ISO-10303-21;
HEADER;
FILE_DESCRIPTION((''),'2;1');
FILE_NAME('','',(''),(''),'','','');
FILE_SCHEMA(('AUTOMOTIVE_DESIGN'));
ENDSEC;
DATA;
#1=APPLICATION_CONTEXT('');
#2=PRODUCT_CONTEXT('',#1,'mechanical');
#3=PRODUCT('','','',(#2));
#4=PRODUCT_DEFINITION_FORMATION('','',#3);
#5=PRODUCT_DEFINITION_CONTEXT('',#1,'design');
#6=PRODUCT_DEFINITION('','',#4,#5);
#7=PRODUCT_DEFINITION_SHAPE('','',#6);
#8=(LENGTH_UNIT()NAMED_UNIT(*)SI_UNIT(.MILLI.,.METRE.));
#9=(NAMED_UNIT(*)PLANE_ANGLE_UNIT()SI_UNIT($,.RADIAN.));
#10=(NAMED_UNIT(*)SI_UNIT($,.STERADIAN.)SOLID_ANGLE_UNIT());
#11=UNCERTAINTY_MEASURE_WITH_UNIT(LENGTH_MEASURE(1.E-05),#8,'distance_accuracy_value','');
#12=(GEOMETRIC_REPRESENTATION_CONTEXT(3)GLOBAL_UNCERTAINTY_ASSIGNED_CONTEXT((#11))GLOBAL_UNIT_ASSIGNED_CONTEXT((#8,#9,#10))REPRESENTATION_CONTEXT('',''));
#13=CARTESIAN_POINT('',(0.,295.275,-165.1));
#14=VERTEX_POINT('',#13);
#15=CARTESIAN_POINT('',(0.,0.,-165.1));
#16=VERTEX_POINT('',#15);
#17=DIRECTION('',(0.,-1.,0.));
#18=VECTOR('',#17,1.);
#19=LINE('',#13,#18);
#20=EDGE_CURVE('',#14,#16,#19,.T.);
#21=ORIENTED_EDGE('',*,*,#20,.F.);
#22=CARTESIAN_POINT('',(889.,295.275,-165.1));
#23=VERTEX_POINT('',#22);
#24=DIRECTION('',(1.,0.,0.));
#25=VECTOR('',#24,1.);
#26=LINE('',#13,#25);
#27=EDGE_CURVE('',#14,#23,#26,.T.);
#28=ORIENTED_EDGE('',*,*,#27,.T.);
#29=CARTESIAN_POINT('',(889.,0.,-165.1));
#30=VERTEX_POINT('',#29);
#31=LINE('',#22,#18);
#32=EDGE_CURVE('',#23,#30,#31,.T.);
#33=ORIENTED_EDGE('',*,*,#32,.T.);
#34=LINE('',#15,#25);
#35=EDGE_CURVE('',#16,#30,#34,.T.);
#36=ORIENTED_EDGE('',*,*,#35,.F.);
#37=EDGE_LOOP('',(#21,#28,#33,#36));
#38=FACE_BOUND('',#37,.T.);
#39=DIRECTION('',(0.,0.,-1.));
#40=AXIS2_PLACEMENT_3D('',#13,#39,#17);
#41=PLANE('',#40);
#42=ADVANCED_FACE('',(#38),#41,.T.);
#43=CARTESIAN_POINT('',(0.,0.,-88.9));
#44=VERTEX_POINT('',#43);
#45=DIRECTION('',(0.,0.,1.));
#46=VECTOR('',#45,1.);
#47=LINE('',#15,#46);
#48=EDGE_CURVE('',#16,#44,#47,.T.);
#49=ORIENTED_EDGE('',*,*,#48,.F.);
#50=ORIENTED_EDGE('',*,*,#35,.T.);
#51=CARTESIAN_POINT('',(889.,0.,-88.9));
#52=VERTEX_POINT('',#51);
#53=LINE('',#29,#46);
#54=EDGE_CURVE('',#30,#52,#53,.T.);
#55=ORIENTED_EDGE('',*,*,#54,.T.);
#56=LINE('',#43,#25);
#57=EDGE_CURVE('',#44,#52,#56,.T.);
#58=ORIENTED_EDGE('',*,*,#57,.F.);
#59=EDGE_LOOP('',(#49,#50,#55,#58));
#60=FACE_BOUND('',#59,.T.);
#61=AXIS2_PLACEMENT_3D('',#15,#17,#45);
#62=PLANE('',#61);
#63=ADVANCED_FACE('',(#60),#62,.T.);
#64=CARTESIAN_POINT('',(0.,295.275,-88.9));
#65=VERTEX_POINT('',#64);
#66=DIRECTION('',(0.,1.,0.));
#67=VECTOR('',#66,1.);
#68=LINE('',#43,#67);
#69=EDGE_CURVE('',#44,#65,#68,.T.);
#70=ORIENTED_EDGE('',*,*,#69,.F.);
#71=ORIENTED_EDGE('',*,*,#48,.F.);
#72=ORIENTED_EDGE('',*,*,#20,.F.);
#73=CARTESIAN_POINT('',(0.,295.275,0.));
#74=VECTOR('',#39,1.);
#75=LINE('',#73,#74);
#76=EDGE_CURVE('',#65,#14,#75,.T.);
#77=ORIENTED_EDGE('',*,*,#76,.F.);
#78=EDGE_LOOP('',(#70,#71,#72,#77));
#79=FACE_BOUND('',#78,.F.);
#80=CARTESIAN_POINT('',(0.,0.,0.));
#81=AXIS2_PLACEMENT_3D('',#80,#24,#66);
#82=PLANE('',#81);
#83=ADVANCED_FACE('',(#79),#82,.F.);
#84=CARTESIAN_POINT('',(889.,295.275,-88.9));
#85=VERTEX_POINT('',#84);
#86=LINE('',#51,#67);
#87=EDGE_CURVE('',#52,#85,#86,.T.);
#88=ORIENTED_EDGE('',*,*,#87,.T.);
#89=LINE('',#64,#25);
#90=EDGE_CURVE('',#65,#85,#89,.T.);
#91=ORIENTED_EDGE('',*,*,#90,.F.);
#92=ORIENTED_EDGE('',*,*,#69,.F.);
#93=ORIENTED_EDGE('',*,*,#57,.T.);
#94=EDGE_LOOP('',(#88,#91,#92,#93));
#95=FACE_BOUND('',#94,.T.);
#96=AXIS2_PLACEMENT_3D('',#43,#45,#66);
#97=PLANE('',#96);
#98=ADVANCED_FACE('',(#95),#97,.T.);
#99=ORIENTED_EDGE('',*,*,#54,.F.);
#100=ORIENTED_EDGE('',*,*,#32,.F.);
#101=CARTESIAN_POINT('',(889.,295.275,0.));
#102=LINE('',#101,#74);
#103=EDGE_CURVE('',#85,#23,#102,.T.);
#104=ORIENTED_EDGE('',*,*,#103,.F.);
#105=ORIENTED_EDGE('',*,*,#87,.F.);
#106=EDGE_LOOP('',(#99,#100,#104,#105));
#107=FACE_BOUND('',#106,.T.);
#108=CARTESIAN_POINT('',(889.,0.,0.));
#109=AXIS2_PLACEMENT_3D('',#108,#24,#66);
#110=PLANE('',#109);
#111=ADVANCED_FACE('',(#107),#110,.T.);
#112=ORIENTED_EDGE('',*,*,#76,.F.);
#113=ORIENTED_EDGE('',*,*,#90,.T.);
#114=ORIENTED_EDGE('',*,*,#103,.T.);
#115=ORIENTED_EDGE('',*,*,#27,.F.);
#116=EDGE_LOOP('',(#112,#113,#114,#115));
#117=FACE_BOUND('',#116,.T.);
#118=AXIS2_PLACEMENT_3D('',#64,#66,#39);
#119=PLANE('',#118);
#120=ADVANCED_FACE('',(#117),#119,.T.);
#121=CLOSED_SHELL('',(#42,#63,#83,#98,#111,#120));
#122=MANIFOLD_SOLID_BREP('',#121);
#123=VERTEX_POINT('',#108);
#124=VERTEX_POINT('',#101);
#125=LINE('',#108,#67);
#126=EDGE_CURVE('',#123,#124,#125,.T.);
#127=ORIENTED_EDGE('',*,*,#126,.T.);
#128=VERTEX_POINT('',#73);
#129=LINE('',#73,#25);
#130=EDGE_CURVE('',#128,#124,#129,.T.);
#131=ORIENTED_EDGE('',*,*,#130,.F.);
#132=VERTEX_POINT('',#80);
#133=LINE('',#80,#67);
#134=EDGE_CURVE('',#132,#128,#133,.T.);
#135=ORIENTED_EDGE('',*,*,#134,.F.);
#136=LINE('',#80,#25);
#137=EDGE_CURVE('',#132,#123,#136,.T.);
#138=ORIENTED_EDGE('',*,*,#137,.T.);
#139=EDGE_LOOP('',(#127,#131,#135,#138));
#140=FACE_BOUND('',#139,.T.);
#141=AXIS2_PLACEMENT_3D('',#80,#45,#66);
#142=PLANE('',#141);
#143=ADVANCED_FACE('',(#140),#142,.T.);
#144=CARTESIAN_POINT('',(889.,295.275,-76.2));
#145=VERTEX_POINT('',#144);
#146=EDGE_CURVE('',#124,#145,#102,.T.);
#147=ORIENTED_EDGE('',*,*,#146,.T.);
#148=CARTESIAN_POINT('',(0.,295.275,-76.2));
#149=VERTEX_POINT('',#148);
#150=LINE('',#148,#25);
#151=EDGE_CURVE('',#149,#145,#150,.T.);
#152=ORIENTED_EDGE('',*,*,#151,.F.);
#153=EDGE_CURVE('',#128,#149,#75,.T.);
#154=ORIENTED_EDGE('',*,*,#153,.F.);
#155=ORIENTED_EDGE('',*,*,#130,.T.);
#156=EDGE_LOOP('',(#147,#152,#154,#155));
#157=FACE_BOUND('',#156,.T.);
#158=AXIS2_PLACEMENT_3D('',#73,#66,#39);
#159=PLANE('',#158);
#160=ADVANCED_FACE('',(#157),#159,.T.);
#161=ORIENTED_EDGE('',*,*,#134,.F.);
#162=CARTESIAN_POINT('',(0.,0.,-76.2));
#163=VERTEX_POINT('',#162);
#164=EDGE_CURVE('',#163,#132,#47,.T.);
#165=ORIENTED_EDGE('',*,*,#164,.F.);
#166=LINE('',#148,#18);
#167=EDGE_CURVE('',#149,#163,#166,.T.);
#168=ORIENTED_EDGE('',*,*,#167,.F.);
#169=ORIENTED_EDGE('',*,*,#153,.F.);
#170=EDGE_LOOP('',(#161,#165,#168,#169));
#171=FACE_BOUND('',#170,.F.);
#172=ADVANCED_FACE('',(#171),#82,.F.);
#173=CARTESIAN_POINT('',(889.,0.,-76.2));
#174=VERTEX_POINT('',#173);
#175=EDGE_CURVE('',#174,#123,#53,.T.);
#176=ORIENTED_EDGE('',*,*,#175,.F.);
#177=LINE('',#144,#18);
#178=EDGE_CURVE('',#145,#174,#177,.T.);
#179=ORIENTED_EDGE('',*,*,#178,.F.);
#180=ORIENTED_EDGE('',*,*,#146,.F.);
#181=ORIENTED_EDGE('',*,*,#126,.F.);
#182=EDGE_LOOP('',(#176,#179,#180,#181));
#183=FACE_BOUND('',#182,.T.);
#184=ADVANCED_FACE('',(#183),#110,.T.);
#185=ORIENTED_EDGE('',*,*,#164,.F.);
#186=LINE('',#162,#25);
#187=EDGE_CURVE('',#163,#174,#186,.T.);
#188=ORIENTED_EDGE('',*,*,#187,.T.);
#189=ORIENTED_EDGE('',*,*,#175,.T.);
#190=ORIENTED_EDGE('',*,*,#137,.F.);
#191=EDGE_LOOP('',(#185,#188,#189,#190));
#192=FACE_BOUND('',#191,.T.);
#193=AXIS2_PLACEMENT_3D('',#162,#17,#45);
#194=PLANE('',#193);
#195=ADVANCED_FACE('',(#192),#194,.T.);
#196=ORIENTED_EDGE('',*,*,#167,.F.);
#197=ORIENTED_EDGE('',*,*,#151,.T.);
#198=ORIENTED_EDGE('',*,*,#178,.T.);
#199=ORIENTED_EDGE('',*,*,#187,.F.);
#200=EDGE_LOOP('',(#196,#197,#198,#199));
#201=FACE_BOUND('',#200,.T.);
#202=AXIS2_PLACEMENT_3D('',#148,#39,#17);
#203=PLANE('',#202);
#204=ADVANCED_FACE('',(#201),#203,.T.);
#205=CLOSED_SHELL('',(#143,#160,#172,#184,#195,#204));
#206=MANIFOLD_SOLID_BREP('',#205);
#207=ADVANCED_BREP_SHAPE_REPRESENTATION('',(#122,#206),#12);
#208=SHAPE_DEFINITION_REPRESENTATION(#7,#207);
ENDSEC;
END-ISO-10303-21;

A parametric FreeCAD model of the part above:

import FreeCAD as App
import Part
import Sketcher
from FreeCAD import Vector
Q = App.Units.Quantity

doc = App.newDocument("Part")
params = doc.addObject("Spreadsheet::Sheet", "Params")
for row, (alias, value) in enumerate([
    ("sketch1_width", "11.625 in"),
    ("pad1_length", "35 in"),
], start=1):
    params.set(f"A{row}", alias)
    params.set(f"B{row}", "=" + value)
    params.setAlias(f"B{row}", alias)

body = doc.addObject("PartDesign::Body", "Body")
body.AllowCompound = True

sketch1 = body.newObject("Sketcher::SketchObject", "Sketch")
sketch1.AttachmentSupport = (doc.getObject("YZ_Plane"), [""])
sketch1.MapMode = "FlatFace"
sketch1.addGeometry([
    Part.LineSegment(Vector(295, 0, 0), Vector(0, 0, 0)),
    Part.LineSegment(Vector(0, 0, 0), Vector(0, -76, 0)),
    Part.LineSegment(Vector(0, -76, 0), Vector(295, -76, 0)),
    Part.LineSegment(Vector(295, -76, 0), Vector(295, 0, 0)),
    Part.LineSegment(Vector(295, -89, 0), Vector(0, -89, 0)),
    Part.LineSegment(Vector(0, -89, 0), Vector(0, -165, 0)),
    Part.LineSegment(Vector(0, -165, 0), Vector(295, -165, 0)),
    Part.LineSegment(Vector(295, -165, 0), Vector(295, -89, 0)),
], False)
sketch1.addConstraint([
    Sketcher.Constraint("Coincident", 0, 2, 1, 1),
    Sketcher.Constraint("Coincident", 1, 2, 2, 1),
    Sketcher.Constraint("Coincident", 2, 2, 3, 1),
    Sketcher.Constraint("Coincident", 3, 2, 0, 1),
    Sketcher.Constraint("Coincident", 4, 2, 5, 1),
    Sketcher.Constraint("Coincident", 5, 2, 6, 1),
    Sketcher.Constraint("Coincident", 6, 2, 7, 1),
    Sketcher.Constraint("Coincident", 7, 2, 4, 1),
    Sketcher.Constraint("Horizontal", 0),
    Sketcher.Constraint("Vertical", 1),
    Sketcher.Constraint("Horizontal", 2),
    Sketcher.Constraint("Vertical", 3),
    Sketcher.Constraint("Horizontal", 4),
    Sketcher.Constraint("Vertical", 5),
    Sketcher.Constraint("Horizontal", 6),
    Sketcher.Constraint("Vertical", 7),
    Sketcher.Constraint("Coincident", 0, 2, -1, 1),
    Sketcher.Constraint("PointOnObject", 4, 2, -2),
    Sketcher.Constraint("Vertical", 3, 2, 6, 2),
    Sketcher.Constraint("Equal", 3, 5),
    Sketcher.Constraint("DistanceY", 5, 2, -1, 1, Q("6.5 in")),
    Sketcher.Constraint("DistanceY", 4, 2, 1, 2, Q("0.5 in")),
    Sketcher.Constraint("DistanceX", 0, 2, 0, 1, Q("11.625 in")),
])
sketch1.setExpression("Constraints[22]", "Params.sketch1_width")
pad1 = body.newObject("PartDesign::Pad", "Pad")
pad1.Profile = sketch1
pad1.setExpression("Length", "Params.pad1_length")

doc.recompute()
